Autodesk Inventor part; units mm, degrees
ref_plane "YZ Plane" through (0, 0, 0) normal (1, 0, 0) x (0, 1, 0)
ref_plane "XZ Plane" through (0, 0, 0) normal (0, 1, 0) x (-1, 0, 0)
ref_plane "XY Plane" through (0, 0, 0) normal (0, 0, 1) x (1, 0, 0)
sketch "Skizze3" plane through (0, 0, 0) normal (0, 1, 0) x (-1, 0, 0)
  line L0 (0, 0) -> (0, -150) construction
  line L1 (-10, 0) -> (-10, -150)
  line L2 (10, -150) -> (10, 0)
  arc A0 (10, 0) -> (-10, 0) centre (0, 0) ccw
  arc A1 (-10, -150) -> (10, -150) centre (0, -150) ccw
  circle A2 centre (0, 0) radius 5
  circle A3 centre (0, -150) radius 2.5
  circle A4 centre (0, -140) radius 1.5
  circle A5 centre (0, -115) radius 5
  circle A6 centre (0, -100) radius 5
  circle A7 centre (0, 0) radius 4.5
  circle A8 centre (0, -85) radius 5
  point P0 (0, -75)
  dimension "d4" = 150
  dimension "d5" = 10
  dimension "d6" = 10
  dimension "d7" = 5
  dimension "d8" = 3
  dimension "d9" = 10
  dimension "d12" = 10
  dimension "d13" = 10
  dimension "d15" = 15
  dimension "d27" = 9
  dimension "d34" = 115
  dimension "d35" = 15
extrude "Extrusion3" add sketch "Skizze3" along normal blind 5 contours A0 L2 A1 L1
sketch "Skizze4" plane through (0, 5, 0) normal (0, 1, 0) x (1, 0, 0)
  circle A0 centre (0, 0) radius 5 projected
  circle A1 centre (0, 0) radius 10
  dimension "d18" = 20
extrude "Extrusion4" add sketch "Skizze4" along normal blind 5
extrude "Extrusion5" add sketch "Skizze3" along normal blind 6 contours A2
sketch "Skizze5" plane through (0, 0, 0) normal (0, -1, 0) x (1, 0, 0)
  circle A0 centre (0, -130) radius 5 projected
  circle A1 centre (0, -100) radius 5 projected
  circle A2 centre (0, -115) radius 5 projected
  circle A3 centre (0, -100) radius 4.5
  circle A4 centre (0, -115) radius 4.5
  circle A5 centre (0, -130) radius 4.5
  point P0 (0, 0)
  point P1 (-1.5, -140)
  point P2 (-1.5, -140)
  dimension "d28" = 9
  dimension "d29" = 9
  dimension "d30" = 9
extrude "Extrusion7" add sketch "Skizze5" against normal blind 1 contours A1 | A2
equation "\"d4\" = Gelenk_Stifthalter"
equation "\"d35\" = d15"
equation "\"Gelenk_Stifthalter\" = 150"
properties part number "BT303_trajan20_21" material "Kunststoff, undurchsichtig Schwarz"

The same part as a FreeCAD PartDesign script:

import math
import FreeCAD as App
import Part
import Sketcher
Q = App.Units.Quantity

doc = App.newDocument("Part")
body = doc.addObject("PartDesign::Body", "Body")

# Sketch on XZ plane
sketch1 = body.newObject("Sketcher::SketchObject", "Sketch")
sketch1.AttachmentSupport = (doc.getObject("XZ_Plane"), [""])
sketch1.MapMode = "FlatFace"
sketch1.addGeometry([
    Part.ArcOfCircle(Part.Circle(App.Vector(0, 0, 0), App.Vector(0, 0, 1), 10), math.radians(0), math.radians(180)),  # 0
    Part.LineSegment(App.Vector(10, 0, 0), App.Vector(10, -150, 0)),  # 1
    Part.ArcOfCircle(Part.Circle(App.Vector(0, -150, 0), App.Vector(0, 0, 1), 10), math.radians(180), math.radians(360)),  # 2
    Part.LineSegment(App.Vector(-10, -150, 0), App.Vector(-10, 0, 0)),  # 3
    Part.Circle(App.Vector(0, -150, 0), App.Vector(0, 0, 1), 2.5),  # 4
    Part.Circle(App.Vector(0, -140, 0), App.Vector(0, 0, 1), 1.5),  # 5
    Part.Circle(App.Vector(0, -115, 0), App.Vector(0, 0, 1), 5),  # 6
    Part.Circle(App.Vector(0, -100, 0), App.Vector(0, 0, 1), 5),  # 7
    Part.Circle(App.Vector(0, -85, 0), App.Vector(0, 0, 1), 5),  # 8
    Part.Circle(App.Vector(0, 0, 0), App.Vector(0, 0, 1), 5),  # 9
], False)
sketch1.addConstraint([
    Sketcher.Constraint("Tangent", 0, 1, 1, 1),
    Sketcher.Constraint("Tangent", 1, 2, 2, 2),
    Sketcher.Constraint("Tangent", 2, 1, 3, 1),
    Sketcher.Constraint("Tangent", 3, 2, 0, 2),
    Sketcher.Constraint("Vertical", 1),
    Sketcher.Constraint("Vertical", 3),
    Sketcher.Constraint("Coincident", 0, 3, -1, 1),
    Sketcher.Constraint("Coincident", 9, 3, -1, 1),
    Sketcher.Constraint("Coincident", 4, 3, 2, 3),
    Sketcher.Constraint("Equal", 6, 7),
    Sketcher.Constraint("Equal", 7, 8),
    Sketcher.Constraint("Equal", 8, 9),
    Sketcher.Constraint("PointOnObject", 5, 3, -2),
    Sketcher.Constraint("PointOnObject", 6, 3, -2),
    Sketcher.Constraint("PointOnObject", 7, 3, -2),
    Sketcher.Constraint("PointOnObject", 8, 3, -2),
    Sketcher.Constraint("Diameter", 4, Q("5 mm")),
    Sketcher.Constraint("Diameter", 5, Q("3 mm")),
    Sketcher.Constraint("Diameter", 6, Q("10 mm")),
    Sketcher.Constraint("Radius", 0, Q("10 mm")),
    Sketcher.Constraint("DistanceY", 1, 2, 1, 1, Q("150 mm")),
    Sketcher.Constraint("DistanceY", 6, 3, -1, 1, Q("115 mm")),
    Sketcher.Constraint("DistanceY", 2, 3, 5, 3, Q("10 mm")),
    Sketcher.Constraint("DistanceY", 6, 3, 7, 3, Q("15 mm")),
    Sketcher.Constraint("DistanceY", 7, 3, 8, 3, Q("15 mm")),
])
pad1 = body.newObject("PartDesign::Pad", "Pad")
pad1.Profile = sketch1
pad1.Length = 5
pad1.Reversed = True

# Sketch on XZ plane
sketch2 = body.newObject("Sketcher::SketchObject", "Sketch001")
sketch2.AttachmentSupport = (doc.getObject("XZ_Plane"), [""])
sketch2.MapMode = "FlatFace"
sketch2.AttachmentOffset = App.Placement(App.Vector(0, 0, -5), App.Rotation())
sketch2.addGeometry([
    Part.Circle(App.Vector(0, 0, 0), App.Vector(0, 0, 1), 10),
    Part.Circle(App.Vector(0, 0, 0), App.Vector(0, 0, 1), 5),
], False)
sketch2.addConstraint([
    Sketcher.Constraint("Coincident", 0, 3, -1, 1),
    Sketcher.Constraint("Coincident", 1, 3, -1, 1),
    Sketcher.Constraint("Diameter", 0, Q("20 mm")),
    Sketcher.Constraint("Diameter", 1, Q("10 mm")),
])
pad2 = body.newObject("PartDesign::Pad", "Pad001")
pad2.Profile = sketch2
pad2.Length = 5
pad2.Reversed = True

# Sketch on XZ plane
sketch3 = body.newObject("Sketcher::SketchObject", "Sketch002")
sketch3.AttachmentSupport = (doc.getObject("XZ_Plane"), [""])
sketch3.MapMode = "FlatFace"
sketch3.addGeometry([
    Part.Circle(App.Vector(0, 0, 0), App.Vector(0, 0, 1), 5),
    Part.Circle(App.Vector(0, 0, 0), App.Vector(0, 0, 1), 4.5),
], False)
sketch3.addConstraint([
    Sketcher.Constraint("Coincident", 0, 3, -1, 1),
    Sketcher.Constraint("Coincident", 1, 3, -1, 1),
    Sketcher.Constraint("Diameter", 0, Q("10 mm")),
    Sketcher.Constraint("Diameter", 1, Q("9 mm")),
])
pad3 = body.newObject("PartDesign::Pad", "Pad002")
pad3.Profile = sketch3
pad3.Length = 6
pad3.Reversed = True

# Sketch on XZ plane
sketch4 = body.newObject("Sketcher::SketchObject", "Sketch003")
sketch4.AttachmentSupport = (doc.getObject("XZ_Plane"), [""])
sketch4.MapMode = "FlatFace"
sketch4.addGeometry([
    Part.Circle(App.Vector(0, -100, 0), App.Vector(0, 0, 1), 5),
    Part.Circle(App.Vector(0, -100, 0), App.Vector(0, 0, 1), 4.5),
    Part.Circle(App.Vector(0, -115, 0), App.Vector(0, 0, 1), 5),
    Part.Circle(App.Vector(0, -115, 0), App.Vector(0, 0, 1), 4.5),
], False)
sketch4.addConstraint([
    Sketcher.Constraint("Coincident", 1, 3, 0, 3),
    Sketcher.Constraint("Coincident", 3, 3, 2, 3),
    Sketcher.Constraint("Equal", 0, 2),
    Sketcher.Constraint("Equal", 1, 3),
    Sketcher.Constraint("PointOnObject", 0, 3, -2),
    Sketcher.Constraint("PointOnObject", 2, 3, -2),
    Sketcher.Constraint("Diameter", 1, Q("9 mm")),
    Sketcher.Constraint("Diameter", 0, Q("10 mm")),
    Sketcher.Constraint("DistanceY", 0, 3, -1, 1, Q("100 mm")),
    Sketcher.Constraint("DistanceY", 2, 3, -1, 1, Q("115 mm")),
])
pad4 = body.newObject("PartDesign::Pad", "Pad003")
pad4.Profile = sketch4
pad4.Length = 1
pad4.Reversed = True

doc.recompute()
